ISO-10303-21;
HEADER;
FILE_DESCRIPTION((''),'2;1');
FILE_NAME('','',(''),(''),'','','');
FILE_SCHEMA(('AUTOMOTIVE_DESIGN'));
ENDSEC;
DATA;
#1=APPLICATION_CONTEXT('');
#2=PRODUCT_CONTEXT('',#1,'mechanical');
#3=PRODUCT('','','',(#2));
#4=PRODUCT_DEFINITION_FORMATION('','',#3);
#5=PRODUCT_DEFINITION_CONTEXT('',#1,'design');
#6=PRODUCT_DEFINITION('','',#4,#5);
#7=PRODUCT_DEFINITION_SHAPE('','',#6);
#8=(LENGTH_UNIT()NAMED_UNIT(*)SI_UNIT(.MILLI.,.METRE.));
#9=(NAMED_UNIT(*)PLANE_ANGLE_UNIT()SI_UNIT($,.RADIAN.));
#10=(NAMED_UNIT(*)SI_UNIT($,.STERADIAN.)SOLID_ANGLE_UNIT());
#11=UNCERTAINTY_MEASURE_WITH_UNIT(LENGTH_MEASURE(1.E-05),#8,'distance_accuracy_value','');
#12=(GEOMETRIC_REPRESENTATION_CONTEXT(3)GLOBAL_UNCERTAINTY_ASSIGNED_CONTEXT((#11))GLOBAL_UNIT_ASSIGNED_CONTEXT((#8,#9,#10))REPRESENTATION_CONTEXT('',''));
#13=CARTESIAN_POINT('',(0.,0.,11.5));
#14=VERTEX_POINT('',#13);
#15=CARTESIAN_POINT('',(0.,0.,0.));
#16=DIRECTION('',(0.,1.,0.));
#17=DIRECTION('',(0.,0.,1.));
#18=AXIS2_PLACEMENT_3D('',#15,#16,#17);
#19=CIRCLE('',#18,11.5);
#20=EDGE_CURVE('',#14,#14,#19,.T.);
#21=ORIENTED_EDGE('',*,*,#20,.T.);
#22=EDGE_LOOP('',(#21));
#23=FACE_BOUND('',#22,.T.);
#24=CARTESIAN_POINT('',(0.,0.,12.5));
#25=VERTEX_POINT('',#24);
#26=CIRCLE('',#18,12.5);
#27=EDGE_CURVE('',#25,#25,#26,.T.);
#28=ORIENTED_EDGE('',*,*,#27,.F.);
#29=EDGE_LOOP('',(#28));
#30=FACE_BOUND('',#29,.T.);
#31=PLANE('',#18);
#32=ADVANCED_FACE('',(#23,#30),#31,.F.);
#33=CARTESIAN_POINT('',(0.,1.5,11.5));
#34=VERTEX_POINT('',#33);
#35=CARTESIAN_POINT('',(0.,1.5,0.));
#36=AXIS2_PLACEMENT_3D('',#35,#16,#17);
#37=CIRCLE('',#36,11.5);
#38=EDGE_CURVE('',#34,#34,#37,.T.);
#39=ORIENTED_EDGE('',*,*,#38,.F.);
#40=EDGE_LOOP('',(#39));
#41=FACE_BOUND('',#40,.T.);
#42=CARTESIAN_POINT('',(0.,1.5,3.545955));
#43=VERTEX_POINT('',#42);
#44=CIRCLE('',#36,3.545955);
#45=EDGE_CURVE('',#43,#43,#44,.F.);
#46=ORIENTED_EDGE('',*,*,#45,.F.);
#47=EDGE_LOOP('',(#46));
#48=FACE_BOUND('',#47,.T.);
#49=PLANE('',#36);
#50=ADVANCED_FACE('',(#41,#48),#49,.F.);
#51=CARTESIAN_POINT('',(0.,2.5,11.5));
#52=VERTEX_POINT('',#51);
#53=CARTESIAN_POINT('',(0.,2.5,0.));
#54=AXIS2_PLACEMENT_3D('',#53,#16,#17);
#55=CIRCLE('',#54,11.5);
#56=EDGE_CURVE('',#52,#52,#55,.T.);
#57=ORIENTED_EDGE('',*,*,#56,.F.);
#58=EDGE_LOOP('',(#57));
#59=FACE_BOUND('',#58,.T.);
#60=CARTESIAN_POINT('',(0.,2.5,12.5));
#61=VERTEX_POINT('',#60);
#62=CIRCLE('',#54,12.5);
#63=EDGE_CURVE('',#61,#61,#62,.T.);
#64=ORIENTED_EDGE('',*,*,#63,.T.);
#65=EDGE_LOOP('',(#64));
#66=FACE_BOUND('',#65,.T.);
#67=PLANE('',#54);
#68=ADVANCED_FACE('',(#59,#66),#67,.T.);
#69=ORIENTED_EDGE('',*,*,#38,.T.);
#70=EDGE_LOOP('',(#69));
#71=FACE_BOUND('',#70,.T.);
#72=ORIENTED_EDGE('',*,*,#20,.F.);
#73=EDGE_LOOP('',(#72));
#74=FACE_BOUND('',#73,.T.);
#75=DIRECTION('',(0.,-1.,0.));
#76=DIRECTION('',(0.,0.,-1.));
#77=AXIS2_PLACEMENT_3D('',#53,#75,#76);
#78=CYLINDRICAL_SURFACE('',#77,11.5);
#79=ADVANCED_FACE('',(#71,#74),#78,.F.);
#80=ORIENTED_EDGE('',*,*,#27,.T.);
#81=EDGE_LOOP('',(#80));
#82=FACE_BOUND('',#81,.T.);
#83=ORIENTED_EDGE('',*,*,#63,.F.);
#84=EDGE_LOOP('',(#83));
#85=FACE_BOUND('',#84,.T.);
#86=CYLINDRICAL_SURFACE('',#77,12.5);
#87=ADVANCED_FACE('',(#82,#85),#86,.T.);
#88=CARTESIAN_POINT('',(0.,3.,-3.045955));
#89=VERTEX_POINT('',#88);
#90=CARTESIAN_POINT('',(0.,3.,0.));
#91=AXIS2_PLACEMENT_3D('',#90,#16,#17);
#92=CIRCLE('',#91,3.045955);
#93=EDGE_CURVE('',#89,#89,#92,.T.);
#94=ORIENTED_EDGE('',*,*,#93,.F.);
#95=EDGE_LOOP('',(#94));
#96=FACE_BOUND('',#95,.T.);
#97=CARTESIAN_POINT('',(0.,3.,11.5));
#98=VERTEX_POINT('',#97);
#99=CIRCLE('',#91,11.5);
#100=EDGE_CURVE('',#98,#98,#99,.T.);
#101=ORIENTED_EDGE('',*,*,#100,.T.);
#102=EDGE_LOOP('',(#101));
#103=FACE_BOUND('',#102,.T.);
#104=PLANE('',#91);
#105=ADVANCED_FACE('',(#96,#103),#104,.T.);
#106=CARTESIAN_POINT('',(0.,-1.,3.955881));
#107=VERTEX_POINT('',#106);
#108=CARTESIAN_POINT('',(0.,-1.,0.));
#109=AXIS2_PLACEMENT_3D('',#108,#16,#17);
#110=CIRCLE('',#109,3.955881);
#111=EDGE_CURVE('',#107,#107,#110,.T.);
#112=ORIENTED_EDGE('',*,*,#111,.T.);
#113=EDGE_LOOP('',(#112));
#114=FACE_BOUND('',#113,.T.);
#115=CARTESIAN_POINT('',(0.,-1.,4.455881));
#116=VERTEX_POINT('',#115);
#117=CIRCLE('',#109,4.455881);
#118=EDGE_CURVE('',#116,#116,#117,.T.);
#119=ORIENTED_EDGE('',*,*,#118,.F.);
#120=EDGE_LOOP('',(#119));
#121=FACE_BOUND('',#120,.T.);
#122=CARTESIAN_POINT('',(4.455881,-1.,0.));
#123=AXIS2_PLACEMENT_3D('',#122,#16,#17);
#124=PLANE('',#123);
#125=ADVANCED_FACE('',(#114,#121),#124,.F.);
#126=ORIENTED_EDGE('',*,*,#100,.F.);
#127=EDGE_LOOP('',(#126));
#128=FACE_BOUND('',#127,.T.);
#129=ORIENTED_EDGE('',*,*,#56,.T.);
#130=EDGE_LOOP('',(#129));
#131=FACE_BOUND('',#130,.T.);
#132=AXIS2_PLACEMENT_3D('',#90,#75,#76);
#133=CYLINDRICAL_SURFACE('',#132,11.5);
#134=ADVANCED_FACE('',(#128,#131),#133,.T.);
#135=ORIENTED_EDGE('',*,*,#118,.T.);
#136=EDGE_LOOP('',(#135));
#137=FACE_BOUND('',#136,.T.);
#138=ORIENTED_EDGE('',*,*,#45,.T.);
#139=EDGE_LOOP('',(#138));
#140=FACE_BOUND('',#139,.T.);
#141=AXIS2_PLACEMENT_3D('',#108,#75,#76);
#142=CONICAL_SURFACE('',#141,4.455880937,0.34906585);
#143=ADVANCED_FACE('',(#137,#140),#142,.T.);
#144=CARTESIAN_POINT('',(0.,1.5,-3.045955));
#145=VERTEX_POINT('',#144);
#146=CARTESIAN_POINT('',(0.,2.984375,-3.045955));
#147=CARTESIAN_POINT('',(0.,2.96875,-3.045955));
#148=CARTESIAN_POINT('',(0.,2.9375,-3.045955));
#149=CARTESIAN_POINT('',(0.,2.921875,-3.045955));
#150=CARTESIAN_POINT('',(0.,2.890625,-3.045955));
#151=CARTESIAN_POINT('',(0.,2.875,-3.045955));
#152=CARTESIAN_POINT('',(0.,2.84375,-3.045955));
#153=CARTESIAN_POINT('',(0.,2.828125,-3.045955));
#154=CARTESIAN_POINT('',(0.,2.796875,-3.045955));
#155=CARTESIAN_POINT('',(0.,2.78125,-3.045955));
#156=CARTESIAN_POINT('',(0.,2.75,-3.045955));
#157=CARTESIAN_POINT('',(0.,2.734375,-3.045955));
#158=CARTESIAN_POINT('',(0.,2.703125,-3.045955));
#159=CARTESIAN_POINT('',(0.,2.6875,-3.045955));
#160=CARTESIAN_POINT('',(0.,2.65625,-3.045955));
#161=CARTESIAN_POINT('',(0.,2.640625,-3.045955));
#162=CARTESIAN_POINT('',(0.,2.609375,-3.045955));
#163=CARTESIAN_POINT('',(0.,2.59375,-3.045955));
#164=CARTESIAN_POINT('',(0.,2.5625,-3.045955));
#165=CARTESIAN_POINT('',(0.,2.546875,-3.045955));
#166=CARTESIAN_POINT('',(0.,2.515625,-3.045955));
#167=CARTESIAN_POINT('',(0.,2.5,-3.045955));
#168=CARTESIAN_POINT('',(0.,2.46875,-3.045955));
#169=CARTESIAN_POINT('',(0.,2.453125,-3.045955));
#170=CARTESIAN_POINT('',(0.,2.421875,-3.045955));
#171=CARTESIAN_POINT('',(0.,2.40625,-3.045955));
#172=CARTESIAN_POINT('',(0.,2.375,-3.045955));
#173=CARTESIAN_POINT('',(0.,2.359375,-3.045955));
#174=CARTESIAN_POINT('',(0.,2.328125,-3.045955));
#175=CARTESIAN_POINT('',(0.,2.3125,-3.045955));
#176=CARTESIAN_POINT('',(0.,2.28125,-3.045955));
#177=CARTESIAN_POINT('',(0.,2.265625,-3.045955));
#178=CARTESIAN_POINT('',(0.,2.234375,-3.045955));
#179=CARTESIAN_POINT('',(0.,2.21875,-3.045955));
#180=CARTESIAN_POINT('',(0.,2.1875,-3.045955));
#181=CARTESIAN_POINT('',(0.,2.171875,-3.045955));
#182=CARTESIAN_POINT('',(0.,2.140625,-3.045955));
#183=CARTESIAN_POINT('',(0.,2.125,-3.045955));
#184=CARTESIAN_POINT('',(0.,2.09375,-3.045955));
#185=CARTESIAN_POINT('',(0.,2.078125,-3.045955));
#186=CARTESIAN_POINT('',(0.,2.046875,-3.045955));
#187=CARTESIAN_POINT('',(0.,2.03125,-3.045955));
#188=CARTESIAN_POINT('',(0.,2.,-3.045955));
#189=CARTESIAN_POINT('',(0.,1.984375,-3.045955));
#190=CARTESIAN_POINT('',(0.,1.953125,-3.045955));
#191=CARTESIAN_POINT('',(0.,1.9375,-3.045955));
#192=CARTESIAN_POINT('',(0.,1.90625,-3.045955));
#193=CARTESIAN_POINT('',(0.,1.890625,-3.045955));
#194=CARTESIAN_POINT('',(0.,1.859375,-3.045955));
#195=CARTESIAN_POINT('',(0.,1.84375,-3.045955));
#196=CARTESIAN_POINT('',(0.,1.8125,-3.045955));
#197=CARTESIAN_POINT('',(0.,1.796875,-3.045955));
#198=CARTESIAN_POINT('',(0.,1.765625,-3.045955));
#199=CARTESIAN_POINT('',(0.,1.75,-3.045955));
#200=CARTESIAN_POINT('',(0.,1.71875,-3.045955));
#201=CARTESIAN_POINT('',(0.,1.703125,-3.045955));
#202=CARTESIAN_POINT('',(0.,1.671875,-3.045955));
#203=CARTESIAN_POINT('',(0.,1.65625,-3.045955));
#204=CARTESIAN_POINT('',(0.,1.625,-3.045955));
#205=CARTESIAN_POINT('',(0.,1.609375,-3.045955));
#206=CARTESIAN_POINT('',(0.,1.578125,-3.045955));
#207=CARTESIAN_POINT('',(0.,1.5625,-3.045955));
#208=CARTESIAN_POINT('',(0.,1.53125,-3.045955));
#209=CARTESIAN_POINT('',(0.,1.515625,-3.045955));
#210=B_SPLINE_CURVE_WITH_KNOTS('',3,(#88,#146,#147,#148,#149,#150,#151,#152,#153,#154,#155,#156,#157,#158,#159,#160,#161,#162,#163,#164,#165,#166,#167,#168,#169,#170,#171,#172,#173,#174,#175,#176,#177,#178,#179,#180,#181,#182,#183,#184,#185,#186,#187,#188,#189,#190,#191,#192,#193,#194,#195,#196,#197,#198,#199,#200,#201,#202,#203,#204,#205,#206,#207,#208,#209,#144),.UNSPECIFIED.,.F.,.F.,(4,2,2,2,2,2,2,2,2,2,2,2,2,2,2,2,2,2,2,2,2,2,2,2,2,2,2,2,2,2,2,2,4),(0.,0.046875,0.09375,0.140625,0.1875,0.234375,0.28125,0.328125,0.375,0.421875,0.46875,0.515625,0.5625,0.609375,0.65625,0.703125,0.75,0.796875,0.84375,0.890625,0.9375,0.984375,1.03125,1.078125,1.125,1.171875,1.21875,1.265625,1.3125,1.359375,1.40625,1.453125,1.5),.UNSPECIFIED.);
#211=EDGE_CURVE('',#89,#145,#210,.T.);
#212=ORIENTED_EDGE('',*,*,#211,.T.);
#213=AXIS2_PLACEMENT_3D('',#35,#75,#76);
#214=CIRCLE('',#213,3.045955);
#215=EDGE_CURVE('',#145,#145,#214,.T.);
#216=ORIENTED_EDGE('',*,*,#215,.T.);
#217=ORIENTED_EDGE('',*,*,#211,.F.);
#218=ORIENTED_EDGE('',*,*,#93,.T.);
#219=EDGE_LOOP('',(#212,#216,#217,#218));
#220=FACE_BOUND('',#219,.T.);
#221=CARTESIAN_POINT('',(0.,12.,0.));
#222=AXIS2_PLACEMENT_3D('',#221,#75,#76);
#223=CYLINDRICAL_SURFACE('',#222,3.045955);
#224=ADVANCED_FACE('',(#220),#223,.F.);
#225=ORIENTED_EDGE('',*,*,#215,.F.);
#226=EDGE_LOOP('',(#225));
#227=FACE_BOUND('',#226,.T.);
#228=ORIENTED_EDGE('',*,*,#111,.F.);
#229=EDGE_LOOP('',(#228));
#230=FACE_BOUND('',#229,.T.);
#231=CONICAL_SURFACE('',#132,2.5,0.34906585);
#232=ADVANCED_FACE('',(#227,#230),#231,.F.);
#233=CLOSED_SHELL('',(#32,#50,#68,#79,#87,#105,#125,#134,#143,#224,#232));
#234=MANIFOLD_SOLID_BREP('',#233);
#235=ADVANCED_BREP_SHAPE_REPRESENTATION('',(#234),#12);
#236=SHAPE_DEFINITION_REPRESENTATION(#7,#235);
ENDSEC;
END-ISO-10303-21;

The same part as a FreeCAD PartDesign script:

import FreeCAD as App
import Part
import Sketcher
Q = App.Units.Quantity


def faces_at(feature, points):
    """Names of the faces that lie closest to the given points."""
    faces = feature.Shape.Faces
    near = lambda p: min(range(len(faces)), key=lambda i: faces[i].distToShape(Part.Vertex(*p))[0])
    return sorted({f"Face{near(p) + 1}" for p in points})

doc = App.newDocument("Part")
body = doc.addObject("PartDesign::Body", "Body")

sketch1 = doc.addObject("Sketcher::SketchObject", "Sketch")
body.addObject(sketch1)
sketch1.AttachmentSupport = (doc.XZ_Plane, [""])
sketch1.MapMode = "FlatFace"
sketch1.addGeometry(Part.Circle(App.Vector(0, 0, 0), App.Vector(0, 0, 1), 12.5), False)
sketch1.addConstraint([
    Sketcher.Constraint("Coincident", 0, 3, -1, 1),
    Sketcher.Constraint("Diameter", 0, Q("25 mm")),
])
pad1 = doc.addObject("PartDesign::Pad", "Pad")
body.addObject(pad1)
pad1.Profile = sketch1
pad1.Length = 2.5
pad1.Reversed = True
doc.recompute()

thickness = doc.addObject("PartDesign::Thickness", "Thickness")
body.addObject(thickness)
thickness.Base = (pad1, faces_at(pad1, [(0, 0, 0)]))
thickness.Value = 1
thickness.Reversed = True
thickness.Join = "Intersection"

sketch2 = doc.addObject("Sketcher::SketchObject", "Sketch001")
body.addObject(sketch2)
sketch2.AttachmentSupport = (doc.XZ_Plane, [""])
sketch2.MapMode = "FlatFace"
sketch2.AttachmentOffset = App.Placement(App.Vector(0, 0, -2.5), App.Rotation())
sketch2.addGeometry(Part.Circle(App.Vector(0, 0, 0), App.Vector(0, 0, 1), 11.5), False)
sketch2.addConstraint([
    Sketcher.Constraint("Coincident", 0, 3, -1, 1),
    Sketcher.Constraint("Diameter", 0, Q("23 mm")),
])
pad2 = doc.addObject("PartDesign::Pad", "Pad001")
body.addObject(pad2)
pad2.Profile = sketch2
pad2.Length = 0.5
pad2.Reversed = True

sketch3 = doc.addObject("Sketcher::SketchObject", "Sketch002")
body.addObject(sketch3)
sketch3.AttachmentSupport = (doc.XY_Plane, [""])
sketch3.MapMode = "FlatFace"
sketch3.addGeometry([
    Part.LineSegment(App.Vector(3.955881, -1, 0), App.Vector(4.455881, -1, 0)),
    Part.LineSegment(App.Vector(4.455881, -1, 0), App.Vector(3, 3, 0)),
    Part.LineSegment(App.Vector(3, 3, 0), App.Vector(2.5, 3, 0)),
    Part.LineSegment(App.Vector(2.5, 3, 0), App.Vector(3.955881, -1, 0)),
], False)
sketch3.addConstraint([
    Sketcher.Constraint("Coincident", 0, 2, 1, 1),
    Sketcher.Constraint("Coincident", 1, 2, 2, 1),
    Sketcher.Constraint("Coincident", 2, 2, 3, 1),
    Sketcher.Constraint("Coincident", 3, 2, 0, 1),
    Sketcher.Constraint("Horizontal", 0),
    Sketcher.Constraint("Horizontal", 2),
    Sketcher.Constraint("Parallel", 1, 3),
    Sketcher.Constraint("Angle", 1, Q("110 deg")),
    Sketcher.Constraint("DistanceX", 0, 1, 0, 2, Q("0.5 mm")),
    Sketcher.Constraint("DistanceY", 0, 2, -1, 1, Q("1 mm")),
    Sketcher.Constraint("DistanceX", -1, 1, 1, 2, Q("3 mm")),
    Sketcher.Constraint("DistanceY", -1, 1, 1, 2, Q("3 mm")),
])
revolution = doc.addObject("PartDesign::Revolution", "Revolution")
body.addObject(revolution)
revolution.Profile = sketch3
revolution.ReferenceAxis = (sketch3, ["V_Axis"])
revolution.Angle = 360

sketch4 = doc.addObject("Sketcher::SketchObject", "Sketch003")
body.addObject(sketch4)
sketch4.AttachmentSupport = (doc.XZ_Plane, [""])
sketch4.MapMode = "FlatFace"
sketch4.AttachmentOffset = App.Placement(App.Vector(0, 0, -1.5), App.Rotation())
sketch4.addGeometry(Part.Circle(App.Vector(0, 0, 0), App.Vector(0, 0, 1), 3.045955), False)
sketch4.addConstraint([
    Sketcher.Constraint("Coincident", 0, 3, -1, 1),
    Sketcher.Constraint("Diameter", 0, Q("6.091911 mm")),
])
pocket1 = doc.addObject("PartDesign::Pocket", "Pocket")
body.addObject(pocket1)
pocket1.Profile = sketch4
pocket1.Length = 10.5

doc.recompute()
